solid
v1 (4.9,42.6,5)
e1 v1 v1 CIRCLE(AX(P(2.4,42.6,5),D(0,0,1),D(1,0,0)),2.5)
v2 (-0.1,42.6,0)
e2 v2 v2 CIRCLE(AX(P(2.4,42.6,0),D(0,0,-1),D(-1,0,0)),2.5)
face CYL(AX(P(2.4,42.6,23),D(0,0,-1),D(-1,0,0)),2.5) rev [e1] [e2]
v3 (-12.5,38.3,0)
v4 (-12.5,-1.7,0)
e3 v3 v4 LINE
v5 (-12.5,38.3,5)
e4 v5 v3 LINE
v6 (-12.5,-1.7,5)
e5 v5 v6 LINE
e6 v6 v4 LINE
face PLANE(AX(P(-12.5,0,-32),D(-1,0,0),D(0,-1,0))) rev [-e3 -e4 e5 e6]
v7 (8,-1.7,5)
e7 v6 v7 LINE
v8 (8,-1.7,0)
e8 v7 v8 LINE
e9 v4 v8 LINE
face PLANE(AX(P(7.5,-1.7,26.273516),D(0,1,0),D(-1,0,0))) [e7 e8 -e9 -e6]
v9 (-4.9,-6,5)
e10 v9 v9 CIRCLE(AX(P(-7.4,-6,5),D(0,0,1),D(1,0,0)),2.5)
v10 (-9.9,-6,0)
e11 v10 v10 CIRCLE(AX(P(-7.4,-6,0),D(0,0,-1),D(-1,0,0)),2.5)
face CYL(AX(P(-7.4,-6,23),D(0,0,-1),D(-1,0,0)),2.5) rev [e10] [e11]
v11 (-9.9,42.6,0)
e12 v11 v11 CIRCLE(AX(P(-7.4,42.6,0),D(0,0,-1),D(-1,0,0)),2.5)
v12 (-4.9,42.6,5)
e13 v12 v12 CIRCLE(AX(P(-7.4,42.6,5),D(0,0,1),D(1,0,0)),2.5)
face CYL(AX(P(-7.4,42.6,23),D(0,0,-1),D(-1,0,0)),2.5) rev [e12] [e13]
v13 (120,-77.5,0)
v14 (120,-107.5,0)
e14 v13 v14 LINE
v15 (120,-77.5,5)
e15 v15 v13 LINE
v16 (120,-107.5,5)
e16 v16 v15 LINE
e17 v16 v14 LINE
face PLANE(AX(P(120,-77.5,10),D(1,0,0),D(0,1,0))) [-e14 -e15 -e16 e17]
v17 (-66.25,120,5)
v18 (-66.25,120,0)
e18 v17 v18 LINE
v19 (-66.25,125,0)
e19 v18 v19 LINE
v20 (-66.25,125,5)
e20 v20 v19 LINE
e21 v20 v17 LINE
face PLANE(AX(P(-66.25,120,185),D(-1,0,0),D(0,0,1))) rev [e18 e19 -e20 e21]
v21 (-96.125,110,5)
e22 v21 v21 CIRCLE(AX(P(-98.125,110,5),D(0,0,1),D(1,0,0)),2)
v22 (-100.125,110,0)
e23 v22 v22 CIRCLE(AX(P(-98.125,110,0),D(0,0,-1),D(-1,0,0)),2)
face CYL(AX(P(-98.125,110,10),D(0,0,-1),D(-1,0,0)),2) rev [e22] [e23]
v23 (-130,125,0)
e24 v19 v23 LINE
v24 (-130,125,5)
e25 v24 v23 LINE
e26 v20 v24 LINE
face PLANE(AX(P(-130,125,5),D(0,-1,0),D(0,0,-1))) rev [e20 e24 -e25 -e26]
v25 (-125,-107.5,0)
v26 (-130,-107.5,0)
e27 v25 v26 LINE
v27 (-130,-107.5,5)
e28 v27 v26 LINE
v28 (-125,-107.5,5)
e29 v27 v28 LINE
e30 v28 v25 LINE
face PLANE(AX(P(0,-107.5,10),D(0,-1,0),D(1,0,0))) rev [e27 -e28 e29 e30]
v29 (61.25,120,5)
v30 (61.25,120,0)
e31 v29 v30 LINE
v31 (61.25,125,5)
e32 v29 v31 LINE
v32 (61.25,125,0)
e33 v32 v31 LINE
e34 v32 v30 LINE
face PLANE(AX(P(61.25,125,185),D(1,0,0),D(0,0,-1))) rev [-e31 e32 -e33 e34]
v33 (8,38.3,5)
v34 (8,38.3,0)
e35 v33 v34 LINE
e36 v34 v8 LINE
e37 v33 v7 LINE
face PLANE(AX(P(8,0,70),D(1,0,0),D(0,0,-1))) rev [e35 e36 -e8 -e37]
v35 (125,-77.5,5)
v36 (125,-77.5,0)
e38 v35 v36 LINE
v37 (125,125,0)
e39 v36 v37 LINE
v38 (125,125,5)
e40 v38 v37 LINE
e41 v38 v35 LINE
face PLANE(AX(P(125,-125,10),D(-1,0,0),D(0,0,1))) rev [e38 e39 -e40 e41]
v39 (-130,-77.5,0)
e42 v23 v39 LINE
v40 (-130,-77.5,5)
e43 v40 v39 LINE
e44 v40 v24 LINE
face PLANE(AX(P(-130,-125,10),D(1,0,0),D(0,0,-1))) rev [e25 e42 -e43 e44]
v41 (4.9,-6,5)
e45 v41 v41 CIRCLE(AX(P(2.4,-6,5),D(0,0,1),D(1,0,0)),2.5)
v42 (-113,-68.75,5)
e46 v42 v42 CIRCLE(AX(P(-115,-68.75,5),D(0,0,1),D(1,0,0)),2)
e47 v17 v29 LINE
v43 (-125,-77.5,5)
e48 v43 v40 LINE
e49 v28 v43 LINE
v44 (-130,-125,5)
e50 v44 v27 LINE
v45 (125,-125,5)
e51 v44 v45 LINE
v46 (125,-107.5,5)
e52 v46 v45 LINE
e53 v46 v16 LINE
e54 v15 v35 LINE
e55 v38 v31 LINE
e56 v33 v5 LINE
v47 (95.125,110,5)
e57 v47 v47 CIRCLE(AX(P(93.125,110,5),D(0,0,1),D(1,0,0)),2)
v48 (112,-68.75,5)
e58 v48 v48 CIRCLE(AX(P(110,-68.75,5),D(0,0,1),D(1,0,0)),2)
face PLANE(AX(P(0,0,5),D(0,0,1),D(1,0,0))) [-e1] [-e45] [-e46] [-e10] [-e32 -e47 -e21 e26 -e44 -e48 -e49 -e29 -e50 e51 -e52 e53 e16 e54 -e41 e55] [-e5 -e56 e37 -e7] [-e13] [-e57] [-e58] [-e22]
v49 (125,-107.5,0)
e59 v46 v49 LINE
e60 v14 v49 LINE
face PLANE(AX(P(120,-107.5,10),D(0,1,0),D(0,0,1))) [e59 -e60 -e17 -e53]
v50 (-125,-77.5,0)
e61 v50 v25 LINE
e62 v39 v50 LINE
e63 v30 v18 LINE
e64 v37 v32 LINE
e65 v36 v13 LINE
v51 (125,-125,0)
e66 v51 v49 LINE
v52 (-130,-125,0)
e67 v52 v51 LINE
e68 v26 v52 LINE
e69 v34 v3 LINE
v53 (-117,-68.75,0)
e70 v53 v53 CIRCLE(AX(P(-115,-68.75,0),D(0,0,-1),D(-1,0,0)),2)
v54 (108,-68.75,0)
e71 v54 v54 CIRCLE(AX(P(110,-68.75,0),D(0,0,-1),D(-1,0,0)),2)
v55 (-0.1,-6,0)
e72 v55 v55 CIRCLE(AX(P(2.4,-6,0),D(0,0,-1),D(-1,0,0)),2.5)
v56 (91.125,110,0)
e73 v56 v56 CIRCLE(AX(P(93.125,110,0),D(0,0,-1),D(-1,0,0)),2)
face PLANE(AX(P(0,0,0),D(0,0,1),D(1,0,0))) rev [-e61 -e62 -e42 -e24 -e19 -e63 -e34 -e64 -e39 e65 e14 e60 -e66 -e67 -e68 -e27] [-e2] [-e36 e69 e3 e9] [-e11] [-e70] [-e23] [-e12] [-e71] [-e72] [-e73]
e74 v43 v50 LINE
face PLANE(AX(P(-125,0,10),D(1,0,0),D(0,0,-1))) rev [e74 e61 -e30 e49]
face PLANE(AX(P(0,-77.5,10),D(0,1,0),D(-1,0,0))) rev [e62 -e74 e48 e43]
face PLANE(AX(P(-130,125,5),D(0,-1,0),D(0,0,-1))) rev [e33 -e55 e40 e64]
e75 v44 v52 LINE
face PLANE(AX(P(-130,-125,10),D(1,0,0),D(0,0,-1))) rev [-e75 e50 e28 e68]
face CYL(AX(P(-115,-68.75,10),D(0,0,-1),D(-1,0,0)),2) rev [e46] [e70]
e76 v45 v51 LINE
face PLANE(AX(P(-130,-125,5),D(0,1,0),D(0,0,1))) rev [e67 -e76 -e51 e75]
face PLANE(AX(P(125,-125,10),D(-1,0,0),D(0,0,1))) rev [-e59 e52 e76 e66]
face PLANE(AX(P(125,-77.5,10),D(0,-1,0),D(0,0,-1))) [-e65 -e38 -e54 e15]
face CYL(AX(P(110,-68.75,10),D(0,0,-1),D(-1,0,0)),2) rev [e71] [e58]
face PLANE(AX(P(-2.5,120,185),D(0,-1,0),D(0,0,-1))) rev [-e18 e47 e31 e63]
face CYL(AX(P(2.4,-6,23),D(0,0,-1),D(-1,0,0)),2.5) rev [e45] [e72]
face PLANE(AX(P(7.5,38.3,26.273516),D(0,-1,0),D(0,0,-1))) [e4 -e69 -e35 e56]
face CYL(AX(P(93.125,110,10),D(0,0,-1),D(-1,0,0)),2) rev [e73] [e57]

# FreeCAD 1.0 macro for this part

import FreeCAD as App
import Part
import Sketcher

V = App.Vector
Q = App.Units.Quantity

doc = App.newDocument("Part")
body = doc.addObject("PartDesign::Body", "Body")

# Sketch on XY plane
sketch1 = body.newObject("Sketcher::SketchObject", "Sketch")
sketch1.AttachmentSupport = (doc.getObject("XY_Plane"), [""])
sketch1.MapMode = "FlatFace"
sketch1.addGeometry(Part.LineSegment(V(-130, 125, 0), V(-130, -125, 0)), False)
sketch1.addGeometry(Part.LineSegment(V(-130, -125, 0), V(125, -125, 0)), False)
sketch1.addGeometry(Part.LineSegment(V(125, -125, 0), V(125, 125, 0)), False)
sketch1.addGeometry(Part.LineSegment(V(125, 125, 0), V(-130, 125, 0)), False)
sketch1.addConstraint(Sketcher.Constraint("Coincident", 0, 2, 1, 1))
sketch1.addConstraint(Sketcher.Constraint("Coincident", 1, 2, 2, 1))
sketch1.addConstraint(Sketcher.Constraint("Coincident", 2, 2, 3, 1))
sketch1.addConstraint(Sketcher.Constraint("Coincident", 3, 2, 0, 1))
sketch1.addConstraint(Sketcher.Constraint("Vertical", 0))
sketch1.addConstraint(Sketcher.Constraint("Horizontal", 1))
sketch1.addConstraint(Sketcher.Constraint("Vertical", 2))
sketch1.addConstraint(Sketcher.Constraint("Horizontal", 3))
sketch1.addConstraint(Sketcher.Constraint("DistanceX", 1, 1, 1, 2, Q("255 mm")))
sketch1.addConstraint(Sketcher.Constraint("DistanceY", 0, 2, 0, 1, Q("250 mm")))
sketch1.addConstraint(Sketcher.Constraint("DistanceX", 0, 2, -1, 1, Q("130 mm")))
sketch1.addConstraint(Sketcher.Constraint("DistanceY", 0, 2, -1, 1, Q("125 mm")))
pad1 = body.newObject("PartDesign::Pad", "Pad")
pad1.Profile = sketch1
pad1.Length = 5

# Sketch on XY plane
sketch2 = body.newObject("Sketcher::SketchObject", "Sketch001")
sketch2.AttachmentSupport = (doc.getObject("XY_Plane"), [""])
sketch2.MapMode = "FlatFace"
sketch2.addGeometry(Part.LineSegment(V(8, 46, 0), V(8, -9, 0)), False)
sketch2.addGeometry(Part.LineSegment(V(8, -9, 0), V(-12, -9, 0)), False)
sketch2.addGeometry(Part.LineSegment(V(-12, -9, 0), V(-12, 46, 0)), False)
sketch2.addGeometry(Part.LineSegment(V(-12, 46, 0), V(8, 46, 0)), False)
sketch2.addConstraint(Sketcher.Constraint("Coincident", 0, 2, 1, 1))
sketch2.addConstraint(Sketcher.Constraint("Coincident", 1, 2, 2, 1))
sketch2.addConstraint(Sketcher.Constraint("Coincident", 2, 2, 3, 1))
sketch2.addConstraint(Sketcher.Constraint("Coincident", 3, 2, 0, 1))
sketch2.addConstraint(Sketcher.Constraint("Vertical", 0))
sketch2.addConstraint(Sketcher.Constraint("Horizontal", 1))
sketch2.addConstraint(Sketcher.Constraint("Vertical", 2))
sketch2.addConstraint(Sketcher.Constraint("Horizontal", 3))
sketch2.addConstraint(Sketcher.Constraint("DistanceX", 1, 2, 1, 1, Q("20 mm")))
sketch2.addConstraint(Sketcher.Constraint("DistanceY", 0, 2, 0, 1, Q("54.5 mm")))
sketch2.addConstraint(Sketcher.Constraint("DistanceX", -1, 1, 0, 2, Q("7.5 mm")))
sketch2.addConstraint(Sketcher.Constraint("DistanceY", 0, 2, -1, 1, Q("8.95 mm")))
pocket1 = body.newObject("PartDesign::Pocket", "Pocket")
pocket1.Profile = sketch2
pocket1.Type = "ThroughAll"
pocket1.Midplane = True

# Sketch on XY plane
sketch3 = body.newObject("Sketcher::SketchObject", "Sketch002")
sketch3.AttachmentSupport = (doc.getObject("XY_Plane"), [""])
sketch3.MapMode = "FlatFace"
sketch3.addGeometry(Part.LineSegment(V(8, 46, 0), V(8, 38, 0)), False)
sketch3.addGeometry(Part.LineSegment(V(8, 38, 0), V(-12, 38, 0)), False)
sketch3.addGeometry(Part.LineSegment(V(-12, 38, 0), V(-12, 46, 0)), False)
sketch3.addGeometry(Part.LineSegment(V(-12, 46, 0), V(8, 46, 0)), False)
sketch3.addGeometry(Part.LineSegment(V(8, -2, 0), V(8, -9, 0)), False)
sketch3.addGeometry(Part.LineSegment(V(8, -9, 0), V(-12, -9, 0)), False)
sketch3.addGeometry(Part.LineSegment(V(-12, -9, 0), V(-12, -2, 0)), False)
sketch3.addGeometry(Part.LineSegment(V(-12, -2, 0), V(8, -2, 0)), False)
sketch3.addConstraint(Sketcher.Constraint("Coincident", 0, 2, 1, 1))
sketch3.addConstraint(Sketcher.Constraint("Coincident", 1, 2, 2, 1))
sketch3.addConstraint(Sketcher.Constraint("Coincident", 2, 2, 3, 1))
sketch3.addConstraint(Sketcher.Constraint("Coincident", 3, 2, 0, 1))
sketch3.addConstraint(Sketcher.Constraint("Coincident", 4, 2, 5, 1))
sketch3.addConstraint(Sketcher.Constraint("Coincident", 5, 2, 6, 1))
sketch3.addConstraint(Sketcher.Constraint("Coincident", 6, 2, 7, 1))
sketch3.addConstraint(Sketcher.Constraint("Coincident", 7, 2, 4, 1))
sketch3.addConstraint(Sketcher.Constraint("Vertical", 0))
sketch3.addConstraint(Sketcher.Constraint("Horizontal", 1))
sketch3.addConstraint(Sketcher.Constraint("Vertical", 2))
sketch3.addConstraint(Sketcher.Constraint("Horizontal", 3))
sketch3.addConstraint(Sketcher.Constraint("Vertical", 4))
sketch3.addConstraint(Sketcher.Constraint("Horizontal", 5))
sketch3.addConstraint(Sketcher.Constraint("Vertical", 6))
sketch3.addConstraint(Sketcher.Constraint("Horizontal", 7))
sketch3.addConstraint(Sketcher.Constraint("Vertical", 3, 2, 4, 2))
sketch3.addConstraint(Sketcher.Constraint("Vertical", 2, 2, 5, 2))
sketch3.addConstraint(Sketcher.Constraint("Equal", 2, 4))
sketch3.addConstraint(Sketcher.Constraint("DistanceX", 1, 2, 1, 1, Q("20 mm")))
sketch3.addConstraint(Sketcher.Constraint("DistanceY", 6, 2, 1, 2, Q("40 mm")))
sketch3.addConstraint(Sketcher.Constraint("DistanceY", 0, 2, 0, 1, Q("7.25 mm")))
sketch3.addConstraint(Sketcher.Constraint("DistanceX", -1, 1, 0, 2, Q("7.5 mm")))
sketch3.addConstraint(Sketcher.Constraint("DistanceY", -1, 1, 0, 2, Q("38.3 mm")))
pad2 = body.newObject("PartDesign::Pad", "Pad001")
pad2.Profile = sketch3
pad2.Length = 5

# Sketch on XY plane
sketch4 = body.newObject("Sketcher::SketchObject", "Sketch003")
sketch4.AttachmentSupport = (doc.getObject("XY_Plane"), [""])
sketch4.MapMode = "FlatFace"
sketch4.addGeometry(Part.LineSegment(V(8, 48, 0), V(32, 48, 0)), False)
sketch4.addGeometry(Part.LineSegment(V(32, 48, 0), V(32, -12, 0)), False)
sketch4.addGeometry(Part.LineSegment(V(32, -12, 0), V(8, -12, 0)), False)
sketch4.addGeometry(Part.LineSegment(V(8, -12, 0), V(8, 48, 0)), False)
sketch4.addConstraint(Sketcher.Constraint("Coincident", 0, 2, 1, 1))
sketch4.addConstraint(Sketcher.Constraint("Coincident", 1, 2, 2, 1))
sketch4.addConstraint(Sketcher.Constraint("Coincident", 2, 2, 3, 1))
sketch4.addConstraint(Sketcher.Constraint("Coincident", 3, 2, 0, 1))
sketch4.addConstraint(Sketcher.Constraint("Horizontal", 0))
sketch4.addConstraint(Sketcher.Constraint("Vertical", 1))
sketch4.addConstraint(Sketcher.Constraint("Horizontal", 2))
sketch4.addConstraint(Sketcher.Constraint("Vertical", 3))
sketch4.addConstraint(Sketcher.Constraint("DistanceX", 0, 1, 0, 2, Q("25 mm")))
sketch4.addConstraint(Sketcher.Constraint("DistanceY", 1, 2, 1, 1, Q("60 mm")))
sketch4.addConstraint(Sketcher.Constraint("DistanceX", -1, 1, 0, 2, Q("32.5 mm")))
sketch4.addConstraint(Sketcher.Constraint("DistanceY", -1, 1, 0, 2, Q("48.3 mm")))
pocket2 = body.newObject("PartDesign::Pocket", "Pocket001")
pocket2.Profile = sketch4
pocket2.Length = 23
pocket2.Reversed = True

# Sketch on XY plane
sketch5 = body.newObject("Sketcher::SketchObject", "Sketch004")
sketch5.AttachmentSupport = (doc.getObject("XY_Plane"), [""])
sketch5.MapMode = "FlatFace"
sketch5.addGeometry(Part.Circle(V(2.4, 42.6, 0), V(0, 0, 1), 2.5), False)
sketch5.addGeometry(Part.Circle(V(-7.4, 42.6, 0), V(0, 0, 1), 2.5), False)
sketch5.addGeometry(Part.Circle(V(2.4, -6, 0), V(0, 0, 1), 2.5), False)
sketch5.addGeometry(Part.Circle(V(-7.4, -6, 0), V(0, 0, 1), 2.5), False)
sketch5.addConstraint(Sketcher.Constraint("Equal", 0, 1))
sketch5.addConstraint(Sketcher.Constraint("Equal", 1, 2))
sketch5.addConstraint(Sketcher.Constraint("Equal", 2, 3))
sketch5.addConstraint(Sketcher.Constraint("Horizontal", 0, 3, 1, 3))
sketch5.addConstraint(Sketcher.Constraint("Horizontal", 2, 3, 3, 3))
sketch5.addConstraint(Sketcher.Constraint("Vertical", 0, 3, 2, 3))
sketch5.addConstraint(Sketcher.Constraint("Vertical", 1, 3, 3, 3))
sketch5.addConstraint(Sketcher.Constraint("Diameter", 0, Q("5 mm")))
sketch5.addConstraint(Sketcher.Constraint("DistanceY", 2, 3, -1, 1, Q("6 mm")))
sketch5.addConstraint(Sketcher.Constraint("DistanceX", -1, 1, 0, 3, Q("2.4 mm")))
sketch5.addConstraint(Sketcher.Constraint("DistanceY", -1, 1, 0, 3, Q("42.6 mm")))
sketch5.addConstraint(Sketcher.Constraint("DistanceX", 1, 3, -1, 1, Q("7.4 mm")))
pocket3 = body.newObject("PartDesign::Pocket", "Pocket002")
pocket3.Profile = sketch5
pocket3.Length = 23
pocket3.Reversed = True

# Sketch on XY plane
sketch6 = body.newObject("Sketcher::SketchObject", "Sketch005")
sketch6.AttachmentSupport = (doc.getObject("XY_Plane"), [""])
sketch6.MapMode = "FlatFace"
sketch6.addGeometry(Part.LineSegment(V(8, 38.8, 0), V(7.5, 38.8, 0)), False)
sketch6.addGeometry(Part.LineSegment(V(7.5, 38.8, 0), V(7.5, 48.3, 0)), False)
sketch6.addGeometry(Part.LineSegment(V(7.5, 48.3, 0), V(32.5, 48.3, 0)), False)
sketch6.addGeometry(Part.LineSegment(V(32.5, 48.3, 0), V(32.5, -11.7, 0)), False)
sketch6.addGeometry(Part.LineSegment(V(32.5, -11.7, 0), V(7.5, -11.7, 0)), False)
sketch6.addGeometry(Part.LineSegment(V(7.5, -11.7, 0), V(7.5, -2.2, 0)), False)
sketch6.addGeometry(Part.LineSegment(V(7.5, -2.2, 0), V(8, -2.2, 0)), False)
sketch6.addGeometry(Part.LineSegment(V(8, -2.2, 0), V(8, 38.8, 0)), False)
sketch6.addConstraint(Sketcher.Constraint("Coincident", 0, 2, 1, 1))
sketch6.addConstraint(Sketcher.Constraint("Coincident", 1, 2, 2, 1))
sketch6.addConstraint(Sketcher.Constraint("Coincident", 2, 2, 3, 1))
sketch6.addConstraint(Sketcher.Constraint("Coincident", 3, 2, 4, 1))
sketch6.addConstraint(Sketcher.Constraint("Coincident", 4, 2, 5, 1))
sketch6.addConstraint(Sketcher.Constraint("Coincident", 5, 2, 6, 1))
sketch6.addConstraint(Sketcher.Constraint("Coincident", 6, 2, 7, 1))
sketch6.addConstraint(Sketcher.Constraint("Coincident", 7, 2, 0, 1))
sketch6.addConstraint(Sketcher.Constraint("Horizontal", 0))
sketch6.addConstraint(Sketcher.Constraint("Vertical", 1))
sketch6.addConstraint(Sketcher.Constraint("Horizontal", 2))
sketch6.addConstraint(Sketcher.Constraint("Vertical", 3))
sketch6.addConstraint(Sketcher.Constraint("Horizontal", 4))
sketch6.addConstraint(Sketcher.Constraint("Vertical", 5))
sketch6.addConstraint(Sketcher.Constraint("Horizontal", 6))
sketch6.addConstraint(Sketcher.Constraint("Vertical", 7))
sketch6.addConstraint(Sketcher.Constraint("Vertical", 1, 2, 4, 2))
sketch6.addConstraint(Sketcher.Constraint("Equal", 1, 5))
sketch6.addConstraint(Sketcher.Constraint("DistanceX", 2, 1, 2, 2, Q("25 mm")))
sketch6.addConstraint(Sketcher.Constraint("DistanceY", 3, 2, 3, 1, Q("60 mm")))
sketch6.addConstraint(Sketcher.Constraint("DistanceY", 7, 1, 7, 2, Q("41 mm")))
sketch6.addConstraint(Sketcher.Constraint("DistanceX", 0, 2, 0, 1, Q("0.5 mm")))
sketch6.addConstraint(Sketcher.Constraint("DistanceX", -1, 1, 6, 2, Q("8 mm")))
sketch6.addConstraint(Sketcher.Constraint("DistanceY", -1, 1, 0, 2, Q("38.8 mm")))
pad3 = body.newObject("PartDesign::Pad", "Pad002")
pad3.Profile = sketch6
pad3.Length = 5

# Sketch on XY plane
sketch7 = body.newObject("Sketcher::SketchObject", "Sketch006")
sketch7.AttachmentSupport = (doc.getObject("XY_Plane"), [""])
sketch7.MapMode = "FlatFace"
sketch7.addGeometry(Part.LineSegment(V(8, 38.8, 0), V(8, 38.3, 0)), False)
sketch7.addGeometry(Part.LineSegment(V(8, 38.3, 0), V(7.5, 38.3, 0)), False)
sketch7.addGeometry(Part.LineSegment(V(7.5, 38.3, 0), V(7.5, 38.8, 0)), False)
sketch7.addGeometry(Part.LineSegment(V(7.5, 38.8, 0), V(8, 38.8, 0)), False)
sketch7.addGeometry(Part.LineSegment(V(8, -1.7, 0), V(8, -2.2, 0)), False)
sketch7.addGeometry(Part.LineSegment(V(8, -2.2, 0), V(7.5, -2.2, 0)), False)
sketch7.addGeometry(Part.LineSegment(V(7.5, -2.2, 0), V(7.5, -1.7, 0)), False)
sketch7.addGeometry(Part.LineSegment(V(7.5, -1.7, 0), V(8, -1.7, 0)), False)
sketch7.addConstraint(Sketcher.Constraint("Coincident", 0, 2, 1, 1))
sketch7.addConstraint(Sketcher.Constraint("Coincident", 1, 2, 2, 1))
sketch7.addConstraint(Sketcher.Constraint("Coincident", 2, 2, 3, 1))
sketch7.addConstraint(Sketcher.Constraint("Coincident", 3, 2, 0, 1))
sketch7.addConstraint(Sketcher.Constraint("Coincident", 4, 2, 5, 1))
sketch7.addConstraint(Sketcher.Constraint("Coincident", 5, 2, 6, 1))
sketch7.addConstraint(Sketcher.Constraint("Coincident", 6, 2, 7, 1))
sketch7.addConstraint(Sketcher.Constraint("Coincident", 7, 2, 4, 1))
sketch7.addConstraint(Sketcher.Constraint("Vertical", 0))
sketch7.addConstraint(Sketcher.Constraint("Horizontal", 1))
sketch7.addConstraint(Sketcher.Constraint("Vertical", 2))
sketch7.addConstraint(Sketcher.Constraint("Horizontal", 3))
sketch7.addConstraint(Sketcher.Constraint("Vertical", 4))
sketch7.addConstraint(Sketcher.Constraint("Horizontal", 5))
sketch7.addConstraint(Sketcher.Constraint("Vertical", 6))
sketch7.addConstraint(Sketcher.Constraint("Horizontal", 7))
sketch7.addConstraint(Sketcher.Constraint("Vertical", 3, 2, 4, 2))
sketch7.addConstraint(Sketcher.Constraint("Vertical", 2, 2, 5, 2))
sketch7.addConstraint(Sketcher.Constraint("Equal", 7, 0))
sketch7.addConstraint(Sketcher.Constraint("Equal", 2, 4))
sketch7.addConstraint(Sketcher.Constraint("DistanceX", 1, 2, 1, 1, Q("0.5 mm")))
sketch7.addConstraint(Sketcher.Constraint("DistanceX", -1, 1, 0, 2, Q("8 mm")))
sketch7.addConstraint(Sketcher.Constraint("DistanceY", 4, 2, 3, 2, Q("41 mm")))
sketch7.addConstraint(Sketcher.Constraint("DistanceY", -1, 1, 0, 2, Q("38.3 mm")))
pad4 = body.newObject("PartDesign::Pad", "Pad003")
pad4.Profile = sketch7
pad4.Length = 5

# Sketch on XY plane
sketch8 = body.newObject("Sketcher::SketchObject", "Sketch007")
sketch8.AttachmentSupport = (doc.getObject("XY_Plane"), [""])
sketch8.MapMode = "FlatFace"
sketch8.addGeometry(Part.LineSegment(V(-130, -125, 0), V(-136, -125, 0)), False)
sketch8.addGeometry(Part.LineSegment(V(-136, -125, 0), V(-136, -60, 0)), False)
sketch8.addGeometry(Part.LineSegment(V(-136, -60, 0), V(-130, -60, 0)), False)
sketch8.addGeometry(Part.LineSegment(V(-130, -60, 0), V(-130, -125, 0)), False)
sketch8.addGeometry(Part.LineSegment(V(131, -60, 0), V(131, -125, 0)), False)
sketch8.addGeometry(Part.LineSegment(V(131, -125, 0), V(125, -125, 0)), False)
sketch8.addGeometry(Part.LineSegment(V(125, -125, 0), V(125, -60, 0)), False)
sketch8.addGeometry(Part.LineSegment(V(125, -60, 0), V(131, -60, 0)), False)
sketch8.addConstraint(Sketcher.Constraint("Coincident", 0, 2, 1, 1))
sketch8.addConstraint(Sketcher.Constraint("Coincident", 1, 2, 2, 1))
sketch8.addConstraint(Sketcher.Constraint("Coincident", 2, 2, 3, 1))
sketch8.addConstraint(Sketcher.Constraint("Coincident", 3, 2, 0, 1))
sketch8.addConstraint(Sketcher.Constraint("Coincident", 4, 2, 5, 1))
sketch8.addConstraint(Sketcher.Constraint("Coincident", 5, 2, 6, 1))
sketch8.addConstraint(Sketcher.Constraint("Coincident", 6, 2, 7, 1))
sketch8.addConstraint(Sketcher.Constraint("Coincident", 7, 2, 4, 1))
sketch8.addConstraint(Sketcher.Constraint("Horizontal", 0))
sketch8.addConstraint(Sketcher.Constraint("Vertical", 1))
sketch8.addConstraint(Sketcher.Constraint("Horizontal", 2))
sketch8.addConstraint(Sketcher.Constraint("Vertical", 3))
sketch8.addConstraint(Sketcher.Constraint("Vertical", 4))
sketch8.addConstraint(Sketcher.Constraint("Horizontal", 5))
sketch8.addConstraint(Sketcher.Constraint("Vertical", 6))
sketch8.addConstraint(Sketcher.Constraint("Horizontal", 7))
sketch8.addConstraint(Sketcher.Constraint("Horizontal", 3, 2, 4, 2))
sketch8.addConstraint(Sketcher.Constraint("Horizontal", 2, 2, 6, 2))
sketch8.addConstraint(Sketcher.Constraint("Equal", 2, 5))
sketch8.addConstraint(Sketcher.Constraint("DistanceX", 0, 2, 0, 1, Q("6 mm")))
sketch8.addConstraint(Sketcher.Constraint("DistanceY", 1, 1, 1, 2, Q("65 mm")))
sketch8.addConstraint(Sketcher.Constraint("DistanceX", 0, 2, -1, 1, Q("136 mm")))
sketch8.addConstraint(Sketcher.Constraint("DistanceY", 0, 2, -1, 1, Q("125 mm")))
sketch8.addConstraint(Sketcher.Constraint("DistanceX", -1, 1, 4, 2, Q("131 mm")))
pad5 = body.newObject("PartDesign::Pad", "Pad004")
pad5.Profile = sketch8
pad5.Length = 5

# Sketch on XY plane
sketch9 = body.newObject("Sketcher::SketchObject", "Sketch008")
sketch9.AttachmentSupport = (doc.getObject("XY_Plane"), [""])
sketch9.MapMode = "FlatFace"
sketch9.addGeometry(Part.LineSegment(V(-125, -78, 0), V(-125, -108, 0)), False)
sketch9.addGeometry(Part.LineSegment(V(-125, -108, 0), V(-130, -108, 0)), False)
sketch9.addGeometry(Part.LineSegment(V(-130, -108, 0), V(-130, -78, 0)), False)
sketch9.addGeometry(Part.LineSegment(V(-130, -78, 0), V(-125, -78, 0)), False)
sketch9.addGeometry(Part.LineSegment(V(125, -78, 0), V(125, -108, 0)), False)
sketch9.addGeometry(Part.LineSegment(V(125, -108, 0), V(120, -108, 0)), False)
sketch9.addGeometry(Part.LineSegment(V(120, -108, 0), V(120, -78, 0)), False)
sketch9.addGeometry(Part.LineSegment(V(120, -78, 0), V(125, -78, 0)), False)
sketch9.addConstraint(Sketcher.Constraint("Coincident", 0, 2, 1, 1))
sketch9.addConstraint(Sketcher.Constraint("Coincident", 1, 2, 2, 1))
sketch9.addConstraint(Sketcher.Constraint("Coincident", 2, 2, 3, 1))
sketch9.addConstraint(Sketcher.Constraint("Coincident", 3, 2, 0, 1))
sketch9.addConstraint(Sketcher.Constraint("Coincident", 4, 2, 5, 1))
sketch9.addConstraint(Sketcher.Constraint("Coincident", 5, 2, 6, 1))
sketch9.addConstraint(Sketcher.Constraint("Coincident", 6, 2, 7, 1))
sketch9.addConstraint(Sketcher.Constraint("Coincident", 7, 2, 4, 1))
sketch9.addConstraint(Sketcher.Constraint("Vertical", 0))
sketch9.addConstraint(Sketcher.Constraint("Horizontal", 1))
sketch9.addConstraint(Sketcher.Constraint("Vertical", 2))
sketch9.addConstraint(Sketcher.Constraint("Horizontal", 3))
sketch9.addConstraint(Sketcher.Constraint("Vertical", 4))
sketch9.addConstraint(Sketcher.Constraint("Horizontal", 5))
sketch9.addConstraint(Sketcher.Constraint("Vertical", 6))
sketch9.addConstraint(Sketcher.Constraint("Horizontal", 7))
sketch9.addConstraint(Sketcher.Constraint("Symmetric", 0, 2, 4, 2, -2))
sketch9.addConstraint(Sketcher.Constraint("Horizontal", 3, 2, 6, 2))
sketch9.addConstraint(Sketcher.Constraint("Equal", 3, 5))
sketch9.addConstraint(Sketcher.Constraint("DistanceX", 1, 2, 1, 1, Q("5 mm")))
sketch9.addConstraint(Sketcher.Constraint("DistanceY", 0, 2, 0, 1, Q("30 mm")))
sketch9.addConstraint(Sketcher.Constraint("DistanceX", 0, 2, -1, 1, Q("125 mm")))
sketch9.addConstraint(Sketcher.Constraint("DistanceY", 0, 2, -1, 1, Q("107.5 mm")))
pocket4 = body.newObject("PartDesign::Pocket", "Pocket003")
pocket4.Profile = sketch9
pocket4.Length = 10
pocket4.Reversed = True

# Sketch on XY plane
sketch10 = body.newObject("Sketcher::SketchObject", "Sketch009")
sketch10.AttachmentSupport = (doc.getObject("XY_Plane"), [""])
sketch10.MapMode = "FlatFace"
sketch10.addGeometry(Part.LineSegment(V(131, 125, 0), V(131, -60, 0)), False)
sketch10.addGeometry(Part.LineSegment(V(131, -60, 0), V(125, -60, 0)), False)
sketch10.addGeometry(Part.LineSegment(V(125, -60, 0), V(125, 125, 0)), False)
sketch10.addGeometry(Part.LineSegment(V(125, 125, 0), V(131, 125, 0)), False)
sketch10.addGeometry(Part.LineSegment(V(-130, 125, 0), V(-130, -60, 0)), False)
sketch10.addGeometry(Part.LineSegment(V(-130, -60, 0), V(-136, -60, 0)), False)
sketch10.addGeometry(Part.LineSegment(V(-136, -60, 0), V(-136, 125, 0)), False)
sketch10.addGeometry(Part.LineSegment(V(-136, 125, 0), V(-130, 125, 0)), False)
sketch10.addConstraint(Sketcher.Constraint("Coincident", 0, 2, 1, 1))
sketch10.addConstraint(Sketcher.Constraint("Coincident", 1, 2, 2, 1))
sketch10.addConstraint(Sketcher.Constraint("Coincident", 2, 2, 3, 1))
sketch10.addConstraint(Sketcher.Constraint("Coincident", 3, 2, 0, 1))
sketch10.addConstraint(Sketcher.Constraint("Coincident", 4, 2, 5, 1))
sketch10.addConstraint(Sketcher.Constraint("Coincident", 5, 2, 6, 1))
sketch10.addConstraint(Sketcher.Constraint("Coincident", 6, 2, 7, 1))
sketch10.addConstraint(Sketcher.Constraint("Coincident", 7, 2, 4, 1))
sketch10.addConstraint(Sketcher.Constraint("Vertical", 0))
sketch10.addConstraint(Sketcher.Constraint("Horizontal", 1))
sketch10.addConstraint(Sketcher.Constraint("Vertical", 2))
sketch10.addConstraint(Sketcher.Constraint("Horizontal", 3))
sketch10.addConstraint(Sketcher.Constraint("Vertical", 4))
sketch10.addConstraint(Sketcher.Constraint("Horizontal", 5))
sketch10.addConstraint(Sketcher.Constraint("Vertical", 6))
sketch10.addConstraint(Sketcher.Constraint("Horizontal", 7))
sketch10.addConstraint(Sketcher.Constraint("Horizontal", 1, 2, 4, 2))
sketch10.addConstraint(Sketcher.Constraint("Horizontal", 3, 2, 6, 2))
sketch10.addConstraint(Sketcher.Constraint("Equal", 3, 5))
sketch10.addConstraint(Sketcher.Constraint("DistanceX", 1, 2, 1, 1, Q("6 mm")))
sketch10.addConstraint(Sketcher.Constraint("DistanceY", 0, 2, 0, 1, Q("185 mm")))
sketch10.addConstraint(Sketcher.Constraint("DistanceX", -1, 1, 0, 2, Q("131 mm")))
sketch10.addConstraint(Sketcher.Constraint("DistanceY", 0, 2, -1, 1, Q("60 mm")))
sketch10.addConstraint(Sketcher.Constraint("DistanceX", 4, 2, -1, 1, Q("130 mm")))
pad6 = body.newObject("PartDesign::Pad", "Pad005")
pad6.Profile = sketch10
pad6.Length = 5

# Sketch on XY plane
sketch11 = body.newObject("Sketcher::SketchObject", "Sketch010")
sketch11.AttachmentSupport = (doc.getObject("XY_Plane"), [""])
sketch11.MapMode = "FlatFace"
sketch11.addGeometry(Part.LineSegment(V(131, 125, 0), V(131, -125, 0)), False)
sketch11.addGeometry(Part.LineSegment(V(131, -125, 0), V(125, -125, 0)), False)
sketch11.addGeometry(Part.LineSegment(V(125, -125, 0), V(125, 125, 0)), False)
sketch11.addGeometry(Part.LineSegment(V(125, 125, 0), V(131, 125, 0)), False)
sketch11.addGeometry(Part.LineSegment(V(-130, 125, 0), V(-130, -125, 0)), False)
sketch11.addGeometry(Part.LineSegment(V(-130, -125, 0), V(-136, -125, 0)), False)
sketch11.addGeometry(Part.LineSegment(V(-136, -125, 0), V(-136, 125, 0)), False)
sketch11.addGeometry(Part.LineSegment(V(-136, 125, 0), V(-130, 125, 0)), False)
sketch11.addConstraint(Sketcher.Constraint("Coincident", 0, 2, 1, 1))
sketch11.addConstraint(Sketcher.Constraint("Coincident", 1, 2, 2, 1))
sketch11.addConstraint(Sketcher.Constraint("Coincident", 2, 2, 3, 1))
sketch11.addConstraint(Sketcher.Constraint("Coincident", 3, 2, 0, 1))
sketch11.addConstraint(Sketcher.Constraint("Coincident", 4, 2, 5, 1))
sketch11.addConstraint(Sketcher.Constraint("Coincident", 5, 2, 6, 1))
sketch11.addConstraint(Sketcher.Constraint("Coincident", 6, 2, 7, 1))
sketch11.addConstraint(Sketcher.Constraint("Coincident", 7, 2, 4, 1))
sketch11.addConstraint(Sketcher.Constraint("Vertical", 0))
sketch11.addConstraint(Sketcher.Constraint("Horizontal", 1))
sketch11.addConstraint(Sketcher.Constraint("Vertical", 2))
sketch11.addConstraint(Sketcher.Constraint("Horizontal", 3))
sketch11.addConstraint(Sketcher.Constraint("Vertical", 4))
sketch11.addConstraint(Sketcher.Constraint("Horizontal", 5))
sketch11.addConstraint(Sketcher.Constraint("Vertical", 6))
sketch11.addConstraint(Sketcher.Constraint("Horizontal", 7))
sketch11.addConstraint(Sketcher.Constraint("Horizontal", 1, 2, 4, 2))
sketch11.addConstraint(Sketcher.Constraint("Horizontal", 3, 2, 6, 2))
sketch11.addConstraint(Sketcher.Constraint("Equal", 3, 5))
sketch11.addConstraint(Sketcher.Constraint("DistanceX", 1, 2, 1, 1, Q("6 mm")))
sketch11.addConstraint(Sketcher.Constraint("DistanceY", 0, 2, 0, 1, Q("250 mm")))
sketch11.addConstraint(Sketcher.Constraint("DistanceX", -1, 1, 0, 2, Q("131 mm")))
sketch11.addConstraint(Sketcher.Constraint("DistanceY", 0, 2, -1, 1, Q("125 mm")))
sketch11.addConstraint(Sketcher.Constraint("DistanceX", 4, 2, -1, 1, Q("130 mm")))
pocket5 = body.newObject("PartDesign::Pocket", "Pocket004")
pocket5.Profile = sketch11
pocket5.Length = 10
pocket5.Reversed = True

# Sketch on XY plane
sketch12 = body.newObject("Sketcher::SketchObject", "Sketch011")
sketch12.AttachmentSupport = (doc.getObject("XY_Plane"), [""])
sketch12.MapMode = "FlatFace"
sketch12.addGeometry(Part.LineSegment(V(61, 125, 0), V(61, 120, 0)), False)
sketch12.addGeometry(Part.LineSegment(V(61, 120, 0), V(-66, 120, 0)), False)
sketch12.addGeometry(Part.LineSegment(V(-66, 120, 0), V(-66, 125, 0)), False)
sketch12.addGeometry(Part.LineSegment(V(-66, 125, 0), V(61, 125, 0)), False)
sketch12.addConstraint(Sketcher.Constraint("Coincident", 0, 2, 1, 1))
sketch12.addConstraint(Sketcher.Constraint("Coincident", 1, 2, 2, 1))
sketch12.addConstraint(Sketcher.Constraint("Coincident", 2, 2, 3, 1))
sketch12.addConstraint(Sketcher.Constraint("Coincident", 3, 2, 0, 1))
sketch12.addConstraint(Sketcher.Constraint("Vertical", 0))
sketch12.addConstraint(Sketcher.Constraint("Horizontal", 1))
sketch12.addConstraint(Sketcher.Constraint("Vertical", 2))
sketch12.addConstraint(Sketcher.Constraint("Horizontal", 3))
sketch12.addConstraint(Sketcher.Constraint("DistanceY", 0, 2, 0, 1, Q("5 mm")))
sketch12.addConstraint(Sketcher.Constraint("DistanceX", 1, 2, 1, 1, Q("127.5 mm")))
sketch12.addConstraint(Sketcher.Constraint("DistanceY", -1, 1, 0, 2, Q("120 mm")))
sketch12.addConstraint(Sketcher.Constraint("DistanceX", -1, 1, 0, 2, Q("61.25 mm")))
pocket6 = body.newObject("PartDesign::Pocket", "Pocket005")
pocket6.Profile = sketch12
pocket6.Length = 185
pocket6.Reversed = True

# Sketch on XY plane
sketch13 = body.newObject("Sketcher::SketchObject", "Sketch012")
sketch13.AttachmentSupport = (doc.getObject("XY_Plane"), [""])
sketch13.MapMode = "FlatFace"
sketch13.addGeometry(Part.Circle(V(93.1, 110, 0), V(0, 0, 1), 1.5), False)
sketch13.addGeometry(Part.Circle(V(-98.1, 110, 0), V(0, 0, 1), 1.5), False)
sketch13.addConstraint(Sketcher.Constraint("Equal", 0, 1))
sketch13.addConstraint(Sketcher.Constraint("Horizontal", 0, 3, 1, 3))
sketch13.addConstraint(Sketcher.Constraint("Diameter", 0, Q("3 mm")))
sketch13.addConstraint(Sketcher.Constraint("DistanceY", -1, 1, 0, 3, Q("110 mm")))
sketch13.addConstraint(Sketcher.Constraint("DistanceX", 1, 3, 0, 3, Q("191.25 mm")))
sketch13.addConstraint(Sketcher.Constraint("DistanceX", -1, 1, 0, 3, Q("93.125 mm")))
pocket7 = body.newObject("PartDesign::Pocket", "Pocket006")
pocket7.Profile = sketch13
pocket7.Length = 185
pocket7.Reversed = True

# Sketch on XY plane
sketch14 = body.newObject("Sketcher::SketchObject", "Sketch013")
sketch14.AttachmentSupport = (doc.getObject("XY_Plane"), [""])
sketch14.MapMode = "FlatFace"
sketch14.addGeometry(Part.Circle(V(110, -68.8, 0), V(0, 0, 1), 1.5), False)
sketch14.addGeometry(Part.Circle(V(-115, -68.8, 0), V(0, 0, 1), 1.5), False)
sketch14.addConstraint(Sketcher.Constraint("Equal", 0, 1))
sketch14.addConstraint(Sketcher.Constraint("Horizontal", 0, 3, 1, 3))
sketch14.addConstraint(Sketcher.Constraint("Diameter", 0, Q("3 mm")))
sketch14.addConstraint(Sketcher.Constraint("DistanceX", -1, 1, 0, 3, Q("110 mm")))
sketch14.addConstraint(Sketcher.Constraint("DistanceX", 1, 3, -1, 1, Q("115 mm")))
sketch14.addConstraint(Sketcher.Constraint("DistanceY", 0, 3, -1, 1, Q("68.75 mm")))
pocket8 = body.newObject("PartDesign::Pocket", "Pocket007")
pocket8.Profile = sketch14
pocket8.Length = 185
pocket8.Reversed = True

# Sketch on XY plane
sketch15 = body.newObject("Sketcher::SketchObject", "Sketch014")
sketch15.AttachmentSupport = (doc.getObject("XY_Plane"), [""])
sketch15.MapMode = "FlatFace"
sketch15.addGeometry(Part.Circle(V(93.1, 110, 0), V(0, 0, 1), 2), False)
sketch15.addGeometry(Part.Circle(V(-98.1, 110, 0), V(0, 0, 1), 2), False)
sketch15.addGeometry(Part.Circle(V(-115, -68.8, 0), V(0, 0, 1), 2), False)
sketch15.addGeometry(Part.Circle(V(110, -68.8, 0), V(0, 0, 1), 2), False)
sketch15.addConstraint(Sketcher.Constraint("Equal", 0, 1))
sketch15.addConstraint(Sketcher.Constraint("Equal", 1, 2))
sketch15.addConstraint(Sketcher.Constraint("Equal", 2, 3))
sketch15.addConstraint(Sketcher.Constraint("Horizontal", 0, 3, 1, 3))
sketch15.addConstraint(Sketcher.Constraint("Horizontal", 2, 3, 3, 3))
sketch15.addConstraint(Sketcher.Constraint("Diameter", 0, Q("4 mm")))
sketch15.addConstraint(Sketcher.Constraint("DistanceY", -1, 1, 0, 3, Q("110 mm")))
sketch15.addConstraint(Sketcher.Constraint("DistanceX", 2, 3, -1, 1, Q("115 mm")))
sketch15.addConstraint(Sketcher.Constraint("DistanceX", -1, 1, 3, 3, Q("110 mm")))
sketch15.addConstraint(Sketcher.Constraint("DistanceY", 2, 3, -1, 1, Q("68.75 mm")))
sketch15.addConstraint(Sketcher.Constraint("DistanceX", 1, 3, 0, 3, Q("191.25 mm")))
sketch15.addConstraint(Sketcher.Constraint("DistanceX", -1, 1, 0, 3, Q("93.125 mm")))
pocket9 = body.newObject("PartDesign::Pocket", "Pocket008")
pocket9.Profile = sketch15
pocket9.Length = 10
pocket9.Reversed = True

doc.recompute()
